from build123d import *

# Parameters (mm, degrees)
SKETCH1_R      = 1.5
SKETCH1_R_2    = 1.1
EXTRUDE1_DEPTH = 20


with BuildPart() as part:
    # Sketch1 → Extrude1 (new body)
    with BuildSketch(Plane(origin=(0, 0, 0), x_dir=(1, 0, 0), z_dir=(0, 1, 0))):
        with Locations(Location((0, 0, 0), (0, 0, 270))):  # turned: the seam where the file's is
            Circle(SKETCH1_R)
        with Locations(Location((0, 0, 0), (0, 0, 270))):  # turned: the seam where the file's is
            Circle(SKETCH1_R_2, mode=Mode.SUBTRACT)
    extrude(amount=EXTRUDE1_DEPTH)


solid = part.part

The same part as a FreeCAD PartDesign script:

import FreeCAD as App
import Part
import Sketcher

doc = App.newDocument("Part")
body = doc.addObject("PartDesign::Body", "Body")

# Sketch on XZ plane
sketch1 = body.newObject("Sketcher::SketchObject", "Sketch")
sketch1.AttachmentSupport = (doc.getObject("XZ_Plane"), [""])
sketch1.MapMode = "FlatFace"
sketch1.addGeometry([
    Part.Circle(App.Vector(0, 0, 0), App.Vector(0, 0, 1), 1.5),
    Part.Circle(App.Vector(0, 0, 0), App.Vector(0, 0, 1), 1.1),
], False)
sketch1.addConstraint([
    Sketcher.Constraint("Coincident", 0, 3, -1, 1),
    Sketcher.Constraint("Coincident", 1, 3, -1, 1),
    Sketcher.Constraint("Diameter", 0, 3.0),
    Sketcher.Constraint("Diameter", 1, 2.2),
])
pad1 = body.newObject("PartDesign::Pad", "Pad")
pad1.Profile = sketch1
pad1.Length = 20
pad1.Reversed = True

doc.recompute()
